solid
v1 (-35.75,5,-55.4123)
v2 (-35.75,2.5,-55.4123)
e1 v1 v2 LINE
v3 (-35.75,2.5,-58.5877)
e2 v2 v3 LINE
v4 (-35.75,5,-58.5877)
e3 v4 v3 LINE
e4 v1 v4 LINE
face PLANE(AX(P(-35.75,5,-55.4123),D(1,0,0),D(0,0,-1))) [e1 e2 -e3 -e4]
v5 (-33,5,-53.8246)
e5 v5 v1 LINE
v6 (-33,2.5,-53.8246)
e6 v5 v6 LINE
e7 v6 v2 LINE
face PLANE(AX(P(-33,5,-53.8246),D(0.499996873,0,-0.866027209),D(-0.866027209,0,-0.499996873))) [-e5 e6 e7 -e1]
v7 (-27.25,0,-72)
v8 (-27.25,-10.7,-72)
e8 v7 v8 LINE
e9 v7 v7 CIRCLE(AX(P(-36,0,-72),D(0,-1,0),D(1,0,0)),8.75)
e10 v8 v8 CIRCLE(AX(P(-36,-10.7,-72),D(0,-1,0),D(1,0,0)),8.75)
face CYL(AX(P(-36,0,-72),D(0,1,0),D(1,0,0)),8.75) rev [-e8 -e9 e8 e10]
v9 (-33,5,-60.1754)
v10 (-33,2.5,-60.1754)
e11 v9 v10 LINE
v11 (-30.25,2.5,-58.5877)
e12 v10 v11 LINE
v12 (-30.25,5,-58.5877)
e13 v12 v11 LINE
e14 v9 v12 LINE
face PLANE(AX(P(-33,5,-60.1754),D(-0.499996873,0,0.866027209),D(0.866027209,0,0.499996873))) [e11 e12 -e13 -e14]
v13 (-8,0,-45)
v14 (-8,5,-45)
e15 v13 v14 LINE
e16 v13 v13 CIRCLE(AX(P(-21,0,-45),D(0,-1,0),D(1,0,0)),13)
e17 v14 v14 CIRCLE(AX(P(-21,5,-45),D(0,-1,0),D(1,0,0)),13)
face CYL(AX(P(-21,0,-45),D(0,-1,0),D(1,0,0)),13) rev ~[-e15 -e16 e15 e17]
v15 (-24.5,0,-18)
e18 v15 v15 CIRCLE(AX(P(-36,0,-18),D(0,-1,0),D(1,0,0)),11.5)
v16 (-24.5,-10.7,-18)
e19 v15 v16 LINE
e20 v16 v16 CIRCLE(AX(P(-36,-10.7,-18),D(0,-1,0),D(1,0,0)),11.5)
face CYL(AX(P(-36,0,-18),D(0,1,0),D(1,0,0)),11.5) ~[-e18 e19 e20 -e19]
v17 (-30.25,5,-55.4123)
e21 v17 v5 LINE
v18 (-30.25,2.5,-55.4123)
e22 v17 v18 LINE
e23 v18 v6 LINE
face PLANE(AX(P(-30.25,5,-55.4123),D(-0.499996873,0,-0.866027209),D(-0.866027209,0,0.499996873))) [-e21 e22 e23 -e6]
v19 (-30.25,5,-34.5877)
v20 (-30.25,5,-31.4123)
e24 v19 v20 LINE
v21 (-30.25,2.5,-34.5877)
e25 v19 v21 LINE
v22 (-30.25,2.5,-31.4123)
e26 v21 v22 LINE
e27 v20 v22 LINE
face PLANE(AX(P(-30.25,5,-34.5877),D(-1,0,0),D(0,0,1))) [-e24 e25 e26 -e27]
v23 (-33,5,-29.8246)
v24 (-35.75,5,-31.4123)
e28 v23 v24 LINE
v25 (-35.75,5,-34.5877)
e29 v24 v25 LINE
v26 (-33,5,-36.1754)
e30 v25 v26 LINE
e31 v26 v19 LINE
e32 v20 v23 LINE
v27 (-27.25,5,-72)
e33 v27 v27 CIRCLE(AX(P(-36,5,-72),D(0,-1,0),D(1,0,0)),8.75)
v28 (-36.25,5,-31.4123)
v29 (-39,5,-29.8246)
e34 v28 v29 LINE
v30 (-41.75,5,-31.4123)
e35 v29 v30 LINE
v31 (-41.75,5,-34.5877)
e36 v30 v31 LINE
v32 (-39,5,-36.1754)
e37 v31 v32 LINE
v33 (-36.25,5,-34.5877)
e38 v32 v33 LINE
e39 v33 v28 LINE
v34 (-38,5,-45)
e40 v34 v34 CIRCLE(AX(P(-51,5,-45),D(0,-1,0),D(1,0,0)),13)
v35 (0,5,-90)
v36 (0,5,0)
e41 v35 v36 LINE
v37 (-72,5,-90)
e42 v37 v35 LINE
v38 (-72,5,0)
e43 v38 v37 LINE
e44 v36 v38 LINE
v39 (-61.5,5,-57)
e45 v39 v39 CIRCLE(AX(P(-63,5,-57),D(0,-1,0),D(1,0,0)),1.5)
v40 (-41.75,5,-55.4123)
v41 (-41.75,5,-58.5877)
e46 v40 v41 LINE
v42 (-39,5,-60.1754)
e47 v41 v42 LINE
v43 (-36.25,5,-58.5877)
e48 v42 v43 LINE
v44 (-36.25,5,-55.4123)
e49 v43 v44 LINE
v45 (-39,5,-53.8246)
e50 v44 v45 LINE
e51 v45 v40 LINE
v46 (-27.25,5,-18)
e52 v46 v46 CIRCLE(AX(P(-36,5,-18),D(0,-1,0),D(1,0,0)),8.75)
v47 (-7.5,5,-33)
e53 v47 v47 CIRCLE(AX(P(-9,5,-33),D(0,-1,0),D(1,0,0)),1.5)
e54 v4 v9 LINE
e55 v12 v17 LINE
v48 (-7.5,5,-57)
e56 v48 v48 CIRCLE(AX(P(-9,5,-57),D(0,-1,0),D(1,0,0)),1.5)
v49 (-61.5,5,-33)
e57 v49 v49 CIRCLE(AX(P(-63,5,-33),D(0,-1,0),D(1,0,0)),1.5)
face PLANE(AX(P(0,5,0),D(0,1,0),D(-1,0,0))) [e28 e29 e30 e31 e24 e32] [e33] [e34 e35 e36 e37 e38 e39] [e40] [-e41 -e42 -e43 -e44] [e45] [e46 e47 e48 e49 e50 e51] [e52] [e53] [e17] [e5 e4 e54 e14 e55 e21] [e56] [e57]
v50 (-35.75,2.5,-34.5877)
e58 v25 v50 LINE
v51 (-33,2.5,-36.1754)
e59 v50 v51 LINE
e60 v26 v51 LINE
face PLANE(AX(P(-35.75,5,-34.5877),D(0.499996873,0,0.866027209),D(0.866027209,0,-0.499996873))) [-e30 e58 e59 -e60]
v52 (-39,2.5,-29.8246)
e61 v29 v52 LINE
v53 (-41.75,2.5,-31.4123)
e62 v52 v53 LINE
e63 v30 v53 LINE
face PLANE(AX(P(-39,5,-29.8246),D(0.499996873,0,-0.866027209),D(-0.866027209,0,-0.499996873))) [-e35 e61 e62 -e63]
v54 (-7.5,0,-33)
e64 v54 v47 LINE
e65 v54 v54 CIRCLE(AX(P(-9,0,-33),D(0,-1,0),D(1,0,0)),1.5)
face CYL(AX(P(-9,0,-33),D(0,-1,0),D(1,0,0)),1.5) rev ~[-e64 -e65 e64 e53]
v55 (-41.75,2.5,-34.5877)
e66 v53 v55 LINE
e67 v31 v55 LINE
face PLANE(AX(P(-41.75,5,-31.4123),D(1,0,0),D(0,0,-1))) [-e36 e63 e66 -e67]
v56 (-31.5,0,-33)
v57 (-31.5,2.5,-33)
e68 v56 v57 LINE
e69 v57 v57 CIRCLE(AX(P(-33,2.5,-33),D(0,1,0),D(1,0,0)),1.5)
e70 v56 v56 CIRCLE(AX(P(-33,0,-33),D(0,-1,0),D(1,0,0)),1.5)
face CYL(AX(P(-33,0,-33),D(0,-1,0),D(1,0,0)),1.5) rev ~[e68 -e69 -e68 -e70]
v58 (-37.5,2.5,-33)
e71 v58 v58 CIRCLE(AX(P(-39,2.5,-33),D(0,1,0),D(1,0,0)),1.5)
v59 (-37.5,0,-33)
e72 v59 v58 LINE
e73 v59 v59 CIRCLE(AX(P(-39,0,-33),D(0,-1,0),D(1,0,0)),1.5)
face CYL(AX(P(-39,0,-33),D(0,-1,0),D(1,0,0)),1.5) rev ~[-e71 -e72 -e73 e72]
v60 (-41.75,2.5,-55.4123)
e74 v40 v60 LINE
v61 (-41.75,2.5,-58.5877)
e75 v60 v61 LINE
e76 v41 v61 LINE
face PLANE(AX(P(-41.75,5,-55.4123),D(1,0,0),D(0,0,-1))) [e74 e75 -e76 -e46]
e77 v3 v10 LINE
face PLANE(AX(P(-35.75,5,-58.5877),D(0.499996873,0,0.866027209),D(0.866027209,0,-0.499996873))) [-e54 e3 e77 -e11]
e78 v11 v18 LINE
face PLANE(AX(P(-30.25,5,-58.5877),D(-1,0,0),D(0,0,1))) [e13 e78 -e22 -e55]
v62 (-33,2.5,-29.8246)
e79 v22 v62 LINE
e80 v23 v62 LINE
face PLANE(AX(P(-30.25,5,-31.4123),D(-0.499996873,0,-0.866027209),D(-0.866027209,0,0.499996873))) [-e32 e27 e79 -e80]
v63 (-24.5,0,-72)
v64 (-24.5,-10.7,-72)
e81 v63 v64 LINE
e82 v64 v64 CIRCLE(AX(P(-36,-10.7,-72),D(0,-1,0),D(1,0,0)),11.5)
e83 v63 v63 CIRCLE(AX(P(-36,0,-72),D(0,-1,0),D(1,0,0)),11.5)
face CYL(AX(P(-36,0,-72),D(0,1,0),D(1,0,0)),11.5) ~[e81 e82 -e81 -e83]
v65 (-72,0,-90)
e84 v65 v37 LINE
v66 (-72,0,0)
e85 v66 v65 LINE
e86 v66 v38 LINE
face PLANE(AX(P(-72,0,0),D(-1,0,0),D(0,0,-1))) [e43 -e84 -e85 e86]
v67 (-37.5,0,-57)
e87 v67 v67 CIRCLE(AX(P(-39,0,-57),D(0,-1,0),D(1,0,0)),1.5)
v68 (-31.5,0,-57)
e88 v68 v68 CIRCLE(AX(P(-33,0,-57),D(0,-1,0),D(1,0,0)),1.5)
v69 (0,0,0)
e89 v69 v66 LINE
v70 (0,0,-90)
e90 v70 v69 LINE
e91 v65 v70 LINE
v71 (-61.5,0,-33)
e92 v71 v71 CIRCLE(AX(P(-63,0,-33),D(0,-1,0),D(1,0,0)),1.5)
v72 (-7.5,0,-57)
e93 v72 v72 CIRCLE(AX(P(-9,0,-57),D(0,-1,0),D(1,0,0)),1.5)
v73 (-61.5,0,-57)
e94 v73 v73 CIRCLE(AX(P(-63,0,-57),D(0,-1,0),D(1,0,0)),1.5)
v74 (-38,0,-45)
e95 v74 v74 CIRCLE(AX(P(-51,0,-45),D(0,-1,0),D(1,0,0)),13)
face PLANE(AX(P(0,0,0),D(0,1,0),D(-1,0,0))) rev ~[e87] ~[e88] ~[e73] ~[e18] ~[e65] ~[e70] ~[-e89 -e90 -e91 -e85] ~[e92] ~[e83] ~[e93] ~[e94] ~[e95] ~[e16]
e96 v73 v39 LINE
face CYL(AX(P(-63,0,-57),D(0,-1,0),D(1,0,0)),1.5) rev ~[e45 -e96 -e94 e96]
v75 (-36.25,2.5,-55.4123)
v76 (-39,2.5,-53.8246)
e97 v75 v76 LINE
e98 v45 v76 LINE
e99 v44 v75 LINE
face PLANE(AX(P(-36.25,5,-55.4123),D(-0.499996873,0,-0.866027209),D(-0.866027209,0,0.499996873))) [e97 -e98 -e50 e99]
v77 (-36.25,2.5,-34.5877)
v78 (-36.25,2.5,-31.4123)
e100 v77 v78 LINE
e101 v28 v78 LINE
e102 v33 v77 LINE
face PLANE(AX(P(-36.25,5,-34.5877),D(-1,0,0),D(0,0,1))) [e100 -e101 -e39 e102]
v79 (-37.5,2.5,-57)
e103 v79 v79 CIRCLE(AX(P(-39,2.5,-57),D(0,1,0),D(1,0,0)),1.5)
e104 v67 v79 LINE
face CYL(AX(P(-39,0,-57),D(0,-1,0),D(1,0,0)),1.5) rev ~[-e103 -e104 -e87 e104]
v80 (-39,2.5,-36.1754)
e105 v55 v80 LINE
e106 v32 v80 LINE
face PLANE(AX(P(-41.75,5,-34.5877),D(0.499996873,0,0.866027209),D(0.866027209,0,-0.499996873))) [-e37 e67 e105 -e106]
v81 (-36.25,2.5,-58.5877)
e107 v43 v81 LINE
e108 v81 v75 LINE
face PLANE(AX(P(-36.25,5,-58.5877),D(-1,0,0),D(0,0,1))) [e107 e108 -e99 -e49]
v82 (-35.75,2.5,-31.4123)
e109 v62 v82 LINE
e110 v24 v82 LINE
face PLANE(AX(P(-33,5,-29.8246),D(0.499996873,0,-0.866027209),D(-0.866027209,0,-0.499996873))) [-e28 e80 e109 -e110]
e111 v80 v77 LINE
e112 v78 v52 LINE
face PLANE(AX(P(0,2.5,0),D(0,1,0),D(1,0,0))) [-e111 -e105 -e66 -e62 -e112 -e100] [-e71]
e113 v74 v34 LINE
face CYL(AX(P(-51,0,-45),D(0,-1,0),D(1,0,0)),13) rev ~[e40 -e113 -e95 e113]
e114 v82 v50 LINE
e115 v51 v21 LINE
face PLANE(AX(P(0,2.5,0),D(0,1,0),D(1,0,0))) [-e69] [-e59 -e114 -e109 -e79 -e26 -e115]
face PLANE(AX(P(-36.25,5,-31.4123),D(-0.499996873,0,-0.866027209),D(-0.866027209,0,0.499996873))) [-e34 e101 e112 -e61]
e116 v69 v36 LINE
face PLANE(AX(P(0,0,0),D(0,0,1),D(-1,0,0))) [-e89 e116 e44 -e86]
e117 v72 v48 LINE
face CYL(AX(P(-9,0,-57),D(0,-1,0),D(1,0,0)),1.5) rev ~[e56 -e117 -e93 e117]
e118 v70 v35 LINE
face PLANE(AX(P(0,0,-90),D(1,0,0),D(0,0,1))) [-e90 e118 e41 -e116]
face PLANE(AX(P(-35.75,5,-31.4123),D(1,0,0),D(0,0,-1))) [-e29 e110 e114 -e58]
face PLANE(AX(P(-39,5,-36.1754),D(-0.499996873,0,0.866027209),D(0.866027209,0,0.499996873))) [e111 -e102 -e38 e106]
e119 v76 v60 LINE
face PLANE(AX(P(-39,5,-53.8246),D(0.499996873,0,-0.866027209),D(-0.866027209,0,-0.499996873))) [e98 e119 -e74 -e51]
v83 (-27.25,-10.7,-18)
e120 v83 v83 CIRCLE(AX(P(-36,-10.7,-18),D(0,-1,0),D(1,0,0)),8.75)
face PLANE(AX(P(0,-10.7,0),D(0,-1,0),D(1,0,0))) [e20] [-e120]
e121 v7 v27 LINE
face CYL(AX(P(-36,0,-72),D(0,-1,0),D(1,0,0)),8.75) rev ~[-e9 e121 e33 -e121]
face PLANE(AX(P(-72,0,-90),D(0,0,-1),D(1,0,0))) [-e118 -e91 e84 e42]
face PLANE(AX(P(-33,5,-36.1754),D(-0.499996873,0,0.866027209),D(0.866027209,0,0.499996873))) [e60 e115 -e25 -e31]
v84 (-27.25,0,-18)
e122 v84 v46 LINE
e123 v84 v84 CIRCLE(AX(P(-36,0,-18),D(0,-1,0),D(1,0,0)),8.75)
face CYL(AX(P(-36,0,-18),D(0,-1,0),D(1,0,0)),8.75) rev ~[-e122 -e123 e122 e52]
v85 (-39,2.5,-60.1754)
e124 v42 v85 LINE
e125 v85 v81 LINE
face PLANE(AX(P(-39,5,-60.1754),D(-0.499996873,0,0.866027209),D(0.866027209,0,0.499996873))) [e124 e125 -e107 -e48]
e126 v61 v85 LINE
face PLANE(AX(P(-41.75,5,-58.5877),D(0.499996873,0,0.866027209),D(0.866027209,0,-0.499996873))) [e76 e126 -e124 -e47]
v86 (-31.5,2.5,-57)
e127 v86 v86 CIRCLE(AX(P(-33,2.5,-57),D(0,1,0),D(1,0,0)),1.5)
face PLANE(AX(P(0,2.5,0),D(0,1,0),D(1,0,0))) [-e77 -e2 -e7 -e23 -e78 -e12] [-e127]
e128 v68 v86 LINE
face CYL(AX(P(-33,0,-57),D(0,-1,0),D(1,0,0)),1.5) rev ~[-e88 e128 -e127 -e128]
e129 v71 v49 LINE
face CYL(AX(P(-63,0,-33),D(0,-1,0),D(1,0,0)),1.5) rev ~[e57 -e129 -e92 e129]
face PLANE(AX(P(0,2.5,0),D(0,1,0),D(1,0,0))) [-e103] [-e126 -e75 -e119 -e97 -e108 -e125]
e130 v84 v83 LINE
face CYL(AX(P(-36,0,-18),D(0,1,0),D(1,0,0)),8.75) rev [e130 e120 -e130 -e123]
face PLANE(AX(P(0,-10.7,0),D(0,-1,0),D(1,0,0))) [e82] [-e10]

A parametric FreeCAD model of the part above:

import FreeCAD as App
import Part
import Sketcher
Q = App.Units.Quantity


def add_polygon(sketch, points):
    """Adds a closed chain of lines whose ends are joined by coincident constraints."""
    first, n = sketch.GeometryCount, len(points)
    for a, b in zip(points, points[1:] + points[:1]):
        sketch.addGeometry(Part.LineSegment(App.Vector(*a, 0), App.Vector(*b, 0)), False)
    for i in range(n):
        sketch.addConstraint(Sketcher.Constraint("Coincident", first + i, 2, first + (i + 1) % n, 1))

doc = App.newDocument("Part")
body = doc.addObject("PartDesign::Body", "Body")

sketch1 = body.newObject("Sketcher::SketchObject", "Sketch")
sketch1.AttachmentSupport = (doc.getObject("XZ_Plane"), [""])
sketch1.MapMode = "FlatFace"
add_polygon(sketch1, [(-72, 0), (0, 0), (0, -90), (-72, -90)])
sketch1.addConstraint(Sketcher.Constraint("Horizontal", 0))
sketch1.addConstraint(Sketcher.Constraint("Vertical", 1))
sketch1.addConstraint(Sketcher.Constraint("Horizontal", 2))
sketch1.addConstraint(Sketcher.Constraint("Vertical", 3))
sketch1.addConstraint(Sketcher.Constraint("Coincident", 0, 2, -1, 1))
sketch1.addConstraint(Sketcher.Constraint("DistanceX", 0, 1, 0, 2, Q("72 mm")))
sketch1.addConstraint(Sketcher.Constraint("DistanceY", 1, 2, 1, 1, Q("90 mm")))
pad1 = body.newObject("PartDesign::Pad", "Pad")
pad1.Profile = sketch1
pad1.Length = 5
pad1.Reversed = True

sketch2 = body.newObject("Sketcher::SketchObject", "Sketch001")
sketch2.AttachmentSupport = (doc.getObject("XZ_Plane"), [""])
sketch2.MapMode = "FlatFace"
sketch2.addGeometry(Part.Circle(App.Vector(-36, -18, 0), App.Vector(0, 0, 1), 12), False)
sketch2.addGeometry(Part.Circle(App.Vector(-36, -18, 0), App.Vector(0, 0, 1), 9), False)
sketch2.addGeometry(Part.Circle(App.Vector(-36, -72, 0), App.Vector(0, 0, 1), 12), False)
sketch2.addGeometry(Part.Circle(App.Vector(-36, -72, 0), App.Vector(0, 0, 1), 9), False)
sketch2.addConstraint(Sketcher.Constraint("Coincident", 1, 3, 0, 3))
sketch2.addConstraint(Sketcher.Constraint("Coincident", 3, 3, 2, 3))
sketch2.addConstraint(Sketcher.Constraint("Equal", 0, 2))
sketch2.addConstraint(Sketcher.Constraint("Equal", 1, 3))
sketch2.addConstraint(Sketcher.Constraint("Vertical", 1, 3, 2, 3))
sketch2.addConstraint(Sketcher.Constraint("Diameter", 0, Q("23 mm")))
sketch2.addConstraint(Sketcher.Constraint("Diameter", 1, Q("17.5 mm")))
sketch2.addConstraint(Sketcher.Constraint("DistanceX", 0, 3, -1, 1, Q("36 mm")))
sketch2.addConstraint(Sketcher.Constraint("DistanceY", 0, 3, -1, 1, Q("18 mm")))
sketch2.addConstraint(Sketcher.Constraint("DistanceY", 2, 3, 0, 3, Q("54 mm")))
pad2 = body.newObject("PartDesign::Pad", "Pad001")
pad2.Profile = sketch2
pad2.Length = 10.7

sketch3 = body.newObject("Sketcher::SketchObject", "Sketch002")
sketch3.AttachmentSupport = (doc.getObject("XZ_Plane"), [""])
sketch3.MapMode = "FlatFace"
sketch3.addGeometry(Part.Circle(App.Vector(-36, -18, 0), App.Vector(0, 0, 1), 9), False)
sketch3.addGeometry(Part.Circle(App.Vector(-36, -72, 0), App.Vector(0, 0, 1), 9), False)
sketch3.addConstraint(Sketcher.Constraint("Equal", 0, 1))
sketch3.addConstraint(Sketcher.Constraint("Vertical", 0, 3, 1, 3))
sketch3.addConstraint(Sketcher.Constraint("Diameter", 0, Q("17.5 mm")))
sketch3.addConstraint(Sketcher.Constraint("DistanceX", 0, 3, -1, 1, Q("36 mm")))
sketch3.addConstraint(Sketcher.Constraint("DistanceY", 0, 3, -1, 1, Q("18 mm")))
sketch3.addConstraint(Sketcher.Constraint("DistanceY", 1, 3, -1, 1, Q("72 mm")))
pocket1 = body.newObject("PartDesign::Pocket", "Pocket")
pocket1.Profile = sketch3
pocket1.Length = 5

sketch4 = body.newObject("Sketcher::SketchObject", "Sketch003")
sketch4.AttachmentSupport = (doc.getObject("XZ_Plane"), [""])
sketch4.MapMode = "FlatFace"
sketch4.addGeometry(Part.Circle(App.Vector(-21, -45, 0), App.Vector(0, 0, 1), 13), False)
sketch4.addGeometry(Part.Circle(App.Vector(-51, -45, 0), App.Vector(0, 0, 1), 13), False)
sketch4.addConstraint(Sketcher.Constraint("Equal", 0, 1))
sketch4.addConstraint(Sketcher.Constraint("Horizontal", 0, 3, 1, 3))
sketch4.addConstraint(Sketcher.Constraint("Diameter", 0, Q("26 mm")))
sketch4.addConstraint(Sketcher.Constraint("DistanceX", 0, 3, -1, 1, Q("21 mm")))
sketch4.addConstraint(Sketcher.Constraint("DistanceY", 0, 3, -1, 1, Q("45 mm")))
sketch4.addConstraint(Sketcher.Constraint("DistanceX", 1, 3, -1, 1, Q("51 mm")))
pocket2 = body.newObject("PartDesign::Pocket", "Pocket001")
pocket2.Profile = sketch4
pocket2.Length = 5

sketch5 = body.newObject("Sketcher::SketchObject", "Sketch004")
sketch5.AttachmentSupport = (doc.getObject("XZ_Plane"), [""])
sketch5.MapMode = "FlatFace"
sketch5.addGeometry(Part.Circle(App.Vector(-9, -57, 0), App.Vector(0, 0, 1), 1.5), False)
sketch5.addGeometry(Part.Circle(App.Vector(-9, -33, 0), App.Vector(0, 0, 1), 1.5), False)
sketch5.addGeometry(Part.Circle(App.Vector(-33, -57, 0), App.Vector(0, 0, 1), 1.5), False)
sketch5.addGeometry(Part.Circle(App.Vector(-33, -33, 0), App.Vector(0, 0, 1), 1.5), False)
sketch5.addGeometry(Part.Circle(App.Vector(-39, -33, 0), App.Vector(0, 0, 1), 1.5), False)
sketch5.addGeometry(Part.Circle(App.Vector(-39, -57, 0), App.Vector(0, 0, 1), 1.5), False)
sketch5.addGeometry(Part.Circle(App.Vector(-63, -57, 0), App.Vector(0, 0, 1), 1.5), False)
sketch5.addGeometry(Part.Circle(App.Vector(-63, -33, 0), App.Vector(0, 0, 1), 1.5), False)
sketch5.addConstraint(Sketcher.Constraint("Equal", 0, 1))
sketch5.addConstraint(Sketcher.Constraint("Equal", 1, 2))
sketch5.addConstraint(Sketcher.Constraint("Equal", 2, 3))
sketch5.addConstraint(Sketcher.Constraint("Equal", 3, 4))
sketch5.addConstraint(Sketcher.Constraint("Equal", 4, 5))
sketch5.addConstraint(Sketcher.Constraint("Equal", 5, 6))
sketch5.addConstraint(Sketcher.Constraint("Equal", 6, 7))
sketch5.addConstraint(Sketcher.Constraint("Horizontal", 0, 3, 2, 3))
sketch5.addConstraint(Sketcher.Constraint("Horizontal", 1, 3, 3, 3))
sketch5.addConstraint(Sketcher.Constraint("Horizontal", 3, 3, 4, 3))
sketch5.addConstraint(Sketcher.Constraint("Horizontal", 2, 3, 5, 3))
sketch5.addConstraint(Sketcher.Constraint("Horizontal", 5, 3, 6, 3))
sketch5.addConstraint(Sketcher.Constraint("Horizontal", 4, 3, 7, 3))
sketch5.addConstraint(Sketcher.Constraint("Vertical", 0, 3, 1, 3))
sketch5.addConstraint(Sketcher.Constraint("Vertical", 2, 3, 3, 3))
sketch5.addConstraint(Sketcher.Constraint("Vertical", 4, 3, 5, 3))
sketch5.addConstraint(Sketcher.Constraint("Vertical", 6, 3, 7, 3))
sketch5.addConstraint(Sketcher.Constraint("Diameter", 0, Q("3 mm")))
sketch5.addConstraint(Sketcher.Constraint("DistanceY", 0, 3, 1, 3, Q("24 mm")))
sketch5.addConstraint(Sketcher.Constraint("DistanceX", 2, 3, 0, 3, Q("24 mm")))
sketch5.addConstraint(Sketcher.Constraint("DistanceX", 6, 3, 5, 3, Q("24 mm")))
sketch5.addConstraint(Sketcher.Constraint("DistanceX", 0, 3, -1, 1, Q("9 mm")))
sketch5.addConstraint(Sketcher.Constraint("DistanceY", 0, 3, -1, 1, Q("57 mm")))
sketch5.addConstraint(Sketcher.Constraint("DistanceX", 4, 3, -1, 1, Q("39 mm")))
pocket3 = body.newObject("PartDesign::Pocket", "Pocket002")
pocket3.Profile = sketch5
pocket3.Length = 5

sketch6 = body.newObject("Sketcher::SketchObject", "Sketch005")
sketch6.AttachmentSupport = (doc.getObject("XZ_Plane"), [""])
sketch6.MapMode = "FlatFace"
sketch6.AttachmentOffset = App.Placement(App.Vector(0, 0, -5), App.Rotation())
add_polygon(sketch6, [(-36.2, -58.6), (-39, -60.2), (-41.8, -58.6), (-41.8, -55.4), (-39, -53.8), (-36.2, -55.4)])
sketch6.addGeometry(Part.Circle(App.Vector(-39, -57, 0), App.Vector(0, 0, 1), 1.5), False)
add_polygon(sketch6, [(-36.2, -34.6), (-39, -36.2), (-41.8, -34.6), (-41.8, -31.4), (-39, -29.8), (-36.2, -31.4)])
sketch6.addGeometry(Part.Circle(App.Vector(-39, -33, 0), App.Vector(0, 0, 1), 1.5), False)
add_polygon(sketch6, [(-30.2, -34.6), (-33, -36.2), (-35.8, -34.6), (-35.8, -31.4), (-33, -29.8), (-30.2, -31.4)])
sketch6.addGeometry(Part.Circle(App.Vector(-33, -33, 0), App.Vector(0, 0, 1), 1.5), False)
add_polygon(sketch6, [(-30.2, -58.6), (-33, -60.2), (-35.8, -58.6), (-35.8, -55.4), (-33, -53.8), (-30.2, -55.4)])
sketch6.addGeometry(Part.Circle(App.Vector(-33, -57, 0), App.Vector(0, 0, 1), 1.5), False)
sketch6.addConstraint(Sketcher.Constraint("Vertical", 2))
sketch6.addConstraint(Sketcher.Constraint("Vertical", 5))
sketch6.addConstraint(Sketcher.Constraint("Vertical", 9))
sketch6.addConstraint(Sketcher.Constraint("Vertical", 12))
sketch6.addConstraint(Sketcher.Constraint("Vertical", 16))
sketch6.addConstraint(Sketcher.Constraint("Vertical", 19))
sketch6.addConstraint(Sketcher.Constraint("Vertical", 23))
sketch6.addConstraint(Sketcher.Constraint("Vertical", 26))
sketch6.addConstraint(Sketcher.Constraint("Equal", 6, 13))
sketch6.addConstraint(Sketcher.Constraint("Equal", 13, 20))
sketch6.addConstraint(Sketcher.Constraint("Equal", 20, 27))
sketch6.addConstraint(Sketcher.Constraint("Parallel", 0, 3))
sketch6.addConstraint(Sketcher.Constraint("Parallel", 1, 4))
sketch6.addConstraint(Sketcher.Constraint("Parallel", 3, 7))
sketch6.addConstraint(Sketcher.Constraint("Parallel", 4, 8))
sketch6.addConstraint(Sketcher.Constraint("Parallel", 7, 10))
sketch6.addConstraint(Sketcher.Constraint("Parallel", 8, 11))
sketch6.addConstraint(Sketcher.Constraint("Parallel", 10, 14))
sketch6.addConstraint(Sketcher.Constraint("Parallel", 11, 15))
sketch6.addConstraint(Sketcher.Constraint("Parallel", 14, 17))
sketch6.addConstraint(Sketcher.Constraint("Parallel", 15, 18))
sketch6.addConstraint(Sketcher.Constraint("Parallel", 17, 21))
sketch6.addConstraint(Sketcher.Constraint("Parallel", 18, 22))
sketch6.addConstraint(Sketcher.Constraint("Parallel", 21, 24))
sketch6.addConstraint(Sketcher.Constraint("Parallel", 22, 25))
sketch6.addConstraint(Sketcher.Constraint("Horizontal", 13, 3, 20, 3))
sketch6.addConstraint(Sketcher.Constraint("Horizontal", 6, 3, 27, 3))
sketch6.addConstraint(Sketcher.Constraint("Horizontal", 2, 2, 4, 2))
sketch6.addConstraint(Sketcher.Constraint("Horizontal", 1, 2, 5, 2))
sketch6.addConstraint(Sketcher.Constraint("Horizontal", 9, 2, 11, 2))
sketch6.addConstraint(Sketcher.Constraint("Horizontal", 8, 2, 12, 2))
sketch6.addConstraint(Sketcher.Constraint("Horizontal", 7, 2, 14, 2))
sketch6.addConstraint(Sketcher.Constraint("Horizontal", 12, 2, 15, 2))
sketch6.addConstraint(Sketcher.Constraint("Horizontal", 11, 2, 16, 2))
sketch6.addConstraint(Sketcher.Constraint("Horizontal", 10, 2, 17, 2))
sketch6.addConstraint(Sketcher.Constraint("Horizontal", 16, 2, 18, 2))
sketch6.addConstraint(Sketcher.Constraint("Horizontal", 0, 2, 21, 2))
sketch6.addConstraint(Sketcher.Constraint("Horizontal", 5, 2, 22, 2))
sketch6.addConstraint(Sketcher.Constraint("Horizontal", 4, 2, 23, 2))
sketch6.addConstraint(Sketcher.Constraint("Horizontal", 3, 2, 24, 2))
sketch6.addConstraint(Sketcher.Constraint("Horizontal", 23, 2, 25, 2))
sketch6.addConstraint(Sketcher.Constraint("Vertical", 6, 3, 13, 3))
sketch6.addConstraint(Sketcher.Constraint("Vertical", 20, 3, 27, 3))
sketch6.addConstraint(Sketcher.Constraint("Vertical", 13, 3, 0, 2))
sketch6.addConstraint(Sketcher.Constraint("Vertical", 0, 2, 3, 2))
sketch6.addConstraint(Sketcher.Constraint("Vertical", 3, 2, 7, 2))
sketch6.addConstraint(Sketcher.Constraint("Vertical", 2, 2, 8, 2))
sketch6.addConstraint(Sketcher.Constraint("Vertical", 27, 3, 14, 2))
sketch6.addConstraint(Sketcher.Constraint("Vertical", 17, 2, 21, 2))
sketch6.addConstraint(Sketcher.Constraint("Equal", 5, 9))
sketch6.addConstraint(Sketcher.Constraint("Diameter", 6, Q("3 mm")))
sketch6.addConstraint(Sketcher.Constraint("DistanceX", 2, 2, 4, 2, Q("5.5 mm")))
sketch6.addConstraint(Sketcher.Constraint("Angle", 0, Q("-150.0002 deg")))
sketch6.addConstraint(Sketcher.Constraint("DistanceX", 6, 3, -1, 1, Q("39 mm")))
sketch6.addConstraint(Sketcher.Constraint("DistanceY", 6, 3, -1, 1, Q("57 mm")))
sketch6.addConstraint(Sketcher.Constraint("DistanceY", 13, 3, -1, 1, Q("33 mm")))
sketch6.addConstraint(Sketcher.Constraint("DistanceX", 20, 3, -1, 1, Q("33 mm")))
sketch6.addConstraint(Sketcher.Constraint("DistanceY", 2, 1, 2, 2, Q("3.1754 mm")))
sketch6.addConstraint(Sketcher.Constraint("DistanceY", 2, 2, 7, 2, Q("19.237 mm")))
sketch6.addConstraint(Sketcher.Constraint("DistanceY", 0, 2, -1, 1, Q("60.1754 mm")))
pocket4 = body.newObject("PartDesign::Pocket", "Pocket003")
pocket4.Profile = sketch6
pocket4.Length = 2.5
pocket4.Reversed = True

doc.recompute()
